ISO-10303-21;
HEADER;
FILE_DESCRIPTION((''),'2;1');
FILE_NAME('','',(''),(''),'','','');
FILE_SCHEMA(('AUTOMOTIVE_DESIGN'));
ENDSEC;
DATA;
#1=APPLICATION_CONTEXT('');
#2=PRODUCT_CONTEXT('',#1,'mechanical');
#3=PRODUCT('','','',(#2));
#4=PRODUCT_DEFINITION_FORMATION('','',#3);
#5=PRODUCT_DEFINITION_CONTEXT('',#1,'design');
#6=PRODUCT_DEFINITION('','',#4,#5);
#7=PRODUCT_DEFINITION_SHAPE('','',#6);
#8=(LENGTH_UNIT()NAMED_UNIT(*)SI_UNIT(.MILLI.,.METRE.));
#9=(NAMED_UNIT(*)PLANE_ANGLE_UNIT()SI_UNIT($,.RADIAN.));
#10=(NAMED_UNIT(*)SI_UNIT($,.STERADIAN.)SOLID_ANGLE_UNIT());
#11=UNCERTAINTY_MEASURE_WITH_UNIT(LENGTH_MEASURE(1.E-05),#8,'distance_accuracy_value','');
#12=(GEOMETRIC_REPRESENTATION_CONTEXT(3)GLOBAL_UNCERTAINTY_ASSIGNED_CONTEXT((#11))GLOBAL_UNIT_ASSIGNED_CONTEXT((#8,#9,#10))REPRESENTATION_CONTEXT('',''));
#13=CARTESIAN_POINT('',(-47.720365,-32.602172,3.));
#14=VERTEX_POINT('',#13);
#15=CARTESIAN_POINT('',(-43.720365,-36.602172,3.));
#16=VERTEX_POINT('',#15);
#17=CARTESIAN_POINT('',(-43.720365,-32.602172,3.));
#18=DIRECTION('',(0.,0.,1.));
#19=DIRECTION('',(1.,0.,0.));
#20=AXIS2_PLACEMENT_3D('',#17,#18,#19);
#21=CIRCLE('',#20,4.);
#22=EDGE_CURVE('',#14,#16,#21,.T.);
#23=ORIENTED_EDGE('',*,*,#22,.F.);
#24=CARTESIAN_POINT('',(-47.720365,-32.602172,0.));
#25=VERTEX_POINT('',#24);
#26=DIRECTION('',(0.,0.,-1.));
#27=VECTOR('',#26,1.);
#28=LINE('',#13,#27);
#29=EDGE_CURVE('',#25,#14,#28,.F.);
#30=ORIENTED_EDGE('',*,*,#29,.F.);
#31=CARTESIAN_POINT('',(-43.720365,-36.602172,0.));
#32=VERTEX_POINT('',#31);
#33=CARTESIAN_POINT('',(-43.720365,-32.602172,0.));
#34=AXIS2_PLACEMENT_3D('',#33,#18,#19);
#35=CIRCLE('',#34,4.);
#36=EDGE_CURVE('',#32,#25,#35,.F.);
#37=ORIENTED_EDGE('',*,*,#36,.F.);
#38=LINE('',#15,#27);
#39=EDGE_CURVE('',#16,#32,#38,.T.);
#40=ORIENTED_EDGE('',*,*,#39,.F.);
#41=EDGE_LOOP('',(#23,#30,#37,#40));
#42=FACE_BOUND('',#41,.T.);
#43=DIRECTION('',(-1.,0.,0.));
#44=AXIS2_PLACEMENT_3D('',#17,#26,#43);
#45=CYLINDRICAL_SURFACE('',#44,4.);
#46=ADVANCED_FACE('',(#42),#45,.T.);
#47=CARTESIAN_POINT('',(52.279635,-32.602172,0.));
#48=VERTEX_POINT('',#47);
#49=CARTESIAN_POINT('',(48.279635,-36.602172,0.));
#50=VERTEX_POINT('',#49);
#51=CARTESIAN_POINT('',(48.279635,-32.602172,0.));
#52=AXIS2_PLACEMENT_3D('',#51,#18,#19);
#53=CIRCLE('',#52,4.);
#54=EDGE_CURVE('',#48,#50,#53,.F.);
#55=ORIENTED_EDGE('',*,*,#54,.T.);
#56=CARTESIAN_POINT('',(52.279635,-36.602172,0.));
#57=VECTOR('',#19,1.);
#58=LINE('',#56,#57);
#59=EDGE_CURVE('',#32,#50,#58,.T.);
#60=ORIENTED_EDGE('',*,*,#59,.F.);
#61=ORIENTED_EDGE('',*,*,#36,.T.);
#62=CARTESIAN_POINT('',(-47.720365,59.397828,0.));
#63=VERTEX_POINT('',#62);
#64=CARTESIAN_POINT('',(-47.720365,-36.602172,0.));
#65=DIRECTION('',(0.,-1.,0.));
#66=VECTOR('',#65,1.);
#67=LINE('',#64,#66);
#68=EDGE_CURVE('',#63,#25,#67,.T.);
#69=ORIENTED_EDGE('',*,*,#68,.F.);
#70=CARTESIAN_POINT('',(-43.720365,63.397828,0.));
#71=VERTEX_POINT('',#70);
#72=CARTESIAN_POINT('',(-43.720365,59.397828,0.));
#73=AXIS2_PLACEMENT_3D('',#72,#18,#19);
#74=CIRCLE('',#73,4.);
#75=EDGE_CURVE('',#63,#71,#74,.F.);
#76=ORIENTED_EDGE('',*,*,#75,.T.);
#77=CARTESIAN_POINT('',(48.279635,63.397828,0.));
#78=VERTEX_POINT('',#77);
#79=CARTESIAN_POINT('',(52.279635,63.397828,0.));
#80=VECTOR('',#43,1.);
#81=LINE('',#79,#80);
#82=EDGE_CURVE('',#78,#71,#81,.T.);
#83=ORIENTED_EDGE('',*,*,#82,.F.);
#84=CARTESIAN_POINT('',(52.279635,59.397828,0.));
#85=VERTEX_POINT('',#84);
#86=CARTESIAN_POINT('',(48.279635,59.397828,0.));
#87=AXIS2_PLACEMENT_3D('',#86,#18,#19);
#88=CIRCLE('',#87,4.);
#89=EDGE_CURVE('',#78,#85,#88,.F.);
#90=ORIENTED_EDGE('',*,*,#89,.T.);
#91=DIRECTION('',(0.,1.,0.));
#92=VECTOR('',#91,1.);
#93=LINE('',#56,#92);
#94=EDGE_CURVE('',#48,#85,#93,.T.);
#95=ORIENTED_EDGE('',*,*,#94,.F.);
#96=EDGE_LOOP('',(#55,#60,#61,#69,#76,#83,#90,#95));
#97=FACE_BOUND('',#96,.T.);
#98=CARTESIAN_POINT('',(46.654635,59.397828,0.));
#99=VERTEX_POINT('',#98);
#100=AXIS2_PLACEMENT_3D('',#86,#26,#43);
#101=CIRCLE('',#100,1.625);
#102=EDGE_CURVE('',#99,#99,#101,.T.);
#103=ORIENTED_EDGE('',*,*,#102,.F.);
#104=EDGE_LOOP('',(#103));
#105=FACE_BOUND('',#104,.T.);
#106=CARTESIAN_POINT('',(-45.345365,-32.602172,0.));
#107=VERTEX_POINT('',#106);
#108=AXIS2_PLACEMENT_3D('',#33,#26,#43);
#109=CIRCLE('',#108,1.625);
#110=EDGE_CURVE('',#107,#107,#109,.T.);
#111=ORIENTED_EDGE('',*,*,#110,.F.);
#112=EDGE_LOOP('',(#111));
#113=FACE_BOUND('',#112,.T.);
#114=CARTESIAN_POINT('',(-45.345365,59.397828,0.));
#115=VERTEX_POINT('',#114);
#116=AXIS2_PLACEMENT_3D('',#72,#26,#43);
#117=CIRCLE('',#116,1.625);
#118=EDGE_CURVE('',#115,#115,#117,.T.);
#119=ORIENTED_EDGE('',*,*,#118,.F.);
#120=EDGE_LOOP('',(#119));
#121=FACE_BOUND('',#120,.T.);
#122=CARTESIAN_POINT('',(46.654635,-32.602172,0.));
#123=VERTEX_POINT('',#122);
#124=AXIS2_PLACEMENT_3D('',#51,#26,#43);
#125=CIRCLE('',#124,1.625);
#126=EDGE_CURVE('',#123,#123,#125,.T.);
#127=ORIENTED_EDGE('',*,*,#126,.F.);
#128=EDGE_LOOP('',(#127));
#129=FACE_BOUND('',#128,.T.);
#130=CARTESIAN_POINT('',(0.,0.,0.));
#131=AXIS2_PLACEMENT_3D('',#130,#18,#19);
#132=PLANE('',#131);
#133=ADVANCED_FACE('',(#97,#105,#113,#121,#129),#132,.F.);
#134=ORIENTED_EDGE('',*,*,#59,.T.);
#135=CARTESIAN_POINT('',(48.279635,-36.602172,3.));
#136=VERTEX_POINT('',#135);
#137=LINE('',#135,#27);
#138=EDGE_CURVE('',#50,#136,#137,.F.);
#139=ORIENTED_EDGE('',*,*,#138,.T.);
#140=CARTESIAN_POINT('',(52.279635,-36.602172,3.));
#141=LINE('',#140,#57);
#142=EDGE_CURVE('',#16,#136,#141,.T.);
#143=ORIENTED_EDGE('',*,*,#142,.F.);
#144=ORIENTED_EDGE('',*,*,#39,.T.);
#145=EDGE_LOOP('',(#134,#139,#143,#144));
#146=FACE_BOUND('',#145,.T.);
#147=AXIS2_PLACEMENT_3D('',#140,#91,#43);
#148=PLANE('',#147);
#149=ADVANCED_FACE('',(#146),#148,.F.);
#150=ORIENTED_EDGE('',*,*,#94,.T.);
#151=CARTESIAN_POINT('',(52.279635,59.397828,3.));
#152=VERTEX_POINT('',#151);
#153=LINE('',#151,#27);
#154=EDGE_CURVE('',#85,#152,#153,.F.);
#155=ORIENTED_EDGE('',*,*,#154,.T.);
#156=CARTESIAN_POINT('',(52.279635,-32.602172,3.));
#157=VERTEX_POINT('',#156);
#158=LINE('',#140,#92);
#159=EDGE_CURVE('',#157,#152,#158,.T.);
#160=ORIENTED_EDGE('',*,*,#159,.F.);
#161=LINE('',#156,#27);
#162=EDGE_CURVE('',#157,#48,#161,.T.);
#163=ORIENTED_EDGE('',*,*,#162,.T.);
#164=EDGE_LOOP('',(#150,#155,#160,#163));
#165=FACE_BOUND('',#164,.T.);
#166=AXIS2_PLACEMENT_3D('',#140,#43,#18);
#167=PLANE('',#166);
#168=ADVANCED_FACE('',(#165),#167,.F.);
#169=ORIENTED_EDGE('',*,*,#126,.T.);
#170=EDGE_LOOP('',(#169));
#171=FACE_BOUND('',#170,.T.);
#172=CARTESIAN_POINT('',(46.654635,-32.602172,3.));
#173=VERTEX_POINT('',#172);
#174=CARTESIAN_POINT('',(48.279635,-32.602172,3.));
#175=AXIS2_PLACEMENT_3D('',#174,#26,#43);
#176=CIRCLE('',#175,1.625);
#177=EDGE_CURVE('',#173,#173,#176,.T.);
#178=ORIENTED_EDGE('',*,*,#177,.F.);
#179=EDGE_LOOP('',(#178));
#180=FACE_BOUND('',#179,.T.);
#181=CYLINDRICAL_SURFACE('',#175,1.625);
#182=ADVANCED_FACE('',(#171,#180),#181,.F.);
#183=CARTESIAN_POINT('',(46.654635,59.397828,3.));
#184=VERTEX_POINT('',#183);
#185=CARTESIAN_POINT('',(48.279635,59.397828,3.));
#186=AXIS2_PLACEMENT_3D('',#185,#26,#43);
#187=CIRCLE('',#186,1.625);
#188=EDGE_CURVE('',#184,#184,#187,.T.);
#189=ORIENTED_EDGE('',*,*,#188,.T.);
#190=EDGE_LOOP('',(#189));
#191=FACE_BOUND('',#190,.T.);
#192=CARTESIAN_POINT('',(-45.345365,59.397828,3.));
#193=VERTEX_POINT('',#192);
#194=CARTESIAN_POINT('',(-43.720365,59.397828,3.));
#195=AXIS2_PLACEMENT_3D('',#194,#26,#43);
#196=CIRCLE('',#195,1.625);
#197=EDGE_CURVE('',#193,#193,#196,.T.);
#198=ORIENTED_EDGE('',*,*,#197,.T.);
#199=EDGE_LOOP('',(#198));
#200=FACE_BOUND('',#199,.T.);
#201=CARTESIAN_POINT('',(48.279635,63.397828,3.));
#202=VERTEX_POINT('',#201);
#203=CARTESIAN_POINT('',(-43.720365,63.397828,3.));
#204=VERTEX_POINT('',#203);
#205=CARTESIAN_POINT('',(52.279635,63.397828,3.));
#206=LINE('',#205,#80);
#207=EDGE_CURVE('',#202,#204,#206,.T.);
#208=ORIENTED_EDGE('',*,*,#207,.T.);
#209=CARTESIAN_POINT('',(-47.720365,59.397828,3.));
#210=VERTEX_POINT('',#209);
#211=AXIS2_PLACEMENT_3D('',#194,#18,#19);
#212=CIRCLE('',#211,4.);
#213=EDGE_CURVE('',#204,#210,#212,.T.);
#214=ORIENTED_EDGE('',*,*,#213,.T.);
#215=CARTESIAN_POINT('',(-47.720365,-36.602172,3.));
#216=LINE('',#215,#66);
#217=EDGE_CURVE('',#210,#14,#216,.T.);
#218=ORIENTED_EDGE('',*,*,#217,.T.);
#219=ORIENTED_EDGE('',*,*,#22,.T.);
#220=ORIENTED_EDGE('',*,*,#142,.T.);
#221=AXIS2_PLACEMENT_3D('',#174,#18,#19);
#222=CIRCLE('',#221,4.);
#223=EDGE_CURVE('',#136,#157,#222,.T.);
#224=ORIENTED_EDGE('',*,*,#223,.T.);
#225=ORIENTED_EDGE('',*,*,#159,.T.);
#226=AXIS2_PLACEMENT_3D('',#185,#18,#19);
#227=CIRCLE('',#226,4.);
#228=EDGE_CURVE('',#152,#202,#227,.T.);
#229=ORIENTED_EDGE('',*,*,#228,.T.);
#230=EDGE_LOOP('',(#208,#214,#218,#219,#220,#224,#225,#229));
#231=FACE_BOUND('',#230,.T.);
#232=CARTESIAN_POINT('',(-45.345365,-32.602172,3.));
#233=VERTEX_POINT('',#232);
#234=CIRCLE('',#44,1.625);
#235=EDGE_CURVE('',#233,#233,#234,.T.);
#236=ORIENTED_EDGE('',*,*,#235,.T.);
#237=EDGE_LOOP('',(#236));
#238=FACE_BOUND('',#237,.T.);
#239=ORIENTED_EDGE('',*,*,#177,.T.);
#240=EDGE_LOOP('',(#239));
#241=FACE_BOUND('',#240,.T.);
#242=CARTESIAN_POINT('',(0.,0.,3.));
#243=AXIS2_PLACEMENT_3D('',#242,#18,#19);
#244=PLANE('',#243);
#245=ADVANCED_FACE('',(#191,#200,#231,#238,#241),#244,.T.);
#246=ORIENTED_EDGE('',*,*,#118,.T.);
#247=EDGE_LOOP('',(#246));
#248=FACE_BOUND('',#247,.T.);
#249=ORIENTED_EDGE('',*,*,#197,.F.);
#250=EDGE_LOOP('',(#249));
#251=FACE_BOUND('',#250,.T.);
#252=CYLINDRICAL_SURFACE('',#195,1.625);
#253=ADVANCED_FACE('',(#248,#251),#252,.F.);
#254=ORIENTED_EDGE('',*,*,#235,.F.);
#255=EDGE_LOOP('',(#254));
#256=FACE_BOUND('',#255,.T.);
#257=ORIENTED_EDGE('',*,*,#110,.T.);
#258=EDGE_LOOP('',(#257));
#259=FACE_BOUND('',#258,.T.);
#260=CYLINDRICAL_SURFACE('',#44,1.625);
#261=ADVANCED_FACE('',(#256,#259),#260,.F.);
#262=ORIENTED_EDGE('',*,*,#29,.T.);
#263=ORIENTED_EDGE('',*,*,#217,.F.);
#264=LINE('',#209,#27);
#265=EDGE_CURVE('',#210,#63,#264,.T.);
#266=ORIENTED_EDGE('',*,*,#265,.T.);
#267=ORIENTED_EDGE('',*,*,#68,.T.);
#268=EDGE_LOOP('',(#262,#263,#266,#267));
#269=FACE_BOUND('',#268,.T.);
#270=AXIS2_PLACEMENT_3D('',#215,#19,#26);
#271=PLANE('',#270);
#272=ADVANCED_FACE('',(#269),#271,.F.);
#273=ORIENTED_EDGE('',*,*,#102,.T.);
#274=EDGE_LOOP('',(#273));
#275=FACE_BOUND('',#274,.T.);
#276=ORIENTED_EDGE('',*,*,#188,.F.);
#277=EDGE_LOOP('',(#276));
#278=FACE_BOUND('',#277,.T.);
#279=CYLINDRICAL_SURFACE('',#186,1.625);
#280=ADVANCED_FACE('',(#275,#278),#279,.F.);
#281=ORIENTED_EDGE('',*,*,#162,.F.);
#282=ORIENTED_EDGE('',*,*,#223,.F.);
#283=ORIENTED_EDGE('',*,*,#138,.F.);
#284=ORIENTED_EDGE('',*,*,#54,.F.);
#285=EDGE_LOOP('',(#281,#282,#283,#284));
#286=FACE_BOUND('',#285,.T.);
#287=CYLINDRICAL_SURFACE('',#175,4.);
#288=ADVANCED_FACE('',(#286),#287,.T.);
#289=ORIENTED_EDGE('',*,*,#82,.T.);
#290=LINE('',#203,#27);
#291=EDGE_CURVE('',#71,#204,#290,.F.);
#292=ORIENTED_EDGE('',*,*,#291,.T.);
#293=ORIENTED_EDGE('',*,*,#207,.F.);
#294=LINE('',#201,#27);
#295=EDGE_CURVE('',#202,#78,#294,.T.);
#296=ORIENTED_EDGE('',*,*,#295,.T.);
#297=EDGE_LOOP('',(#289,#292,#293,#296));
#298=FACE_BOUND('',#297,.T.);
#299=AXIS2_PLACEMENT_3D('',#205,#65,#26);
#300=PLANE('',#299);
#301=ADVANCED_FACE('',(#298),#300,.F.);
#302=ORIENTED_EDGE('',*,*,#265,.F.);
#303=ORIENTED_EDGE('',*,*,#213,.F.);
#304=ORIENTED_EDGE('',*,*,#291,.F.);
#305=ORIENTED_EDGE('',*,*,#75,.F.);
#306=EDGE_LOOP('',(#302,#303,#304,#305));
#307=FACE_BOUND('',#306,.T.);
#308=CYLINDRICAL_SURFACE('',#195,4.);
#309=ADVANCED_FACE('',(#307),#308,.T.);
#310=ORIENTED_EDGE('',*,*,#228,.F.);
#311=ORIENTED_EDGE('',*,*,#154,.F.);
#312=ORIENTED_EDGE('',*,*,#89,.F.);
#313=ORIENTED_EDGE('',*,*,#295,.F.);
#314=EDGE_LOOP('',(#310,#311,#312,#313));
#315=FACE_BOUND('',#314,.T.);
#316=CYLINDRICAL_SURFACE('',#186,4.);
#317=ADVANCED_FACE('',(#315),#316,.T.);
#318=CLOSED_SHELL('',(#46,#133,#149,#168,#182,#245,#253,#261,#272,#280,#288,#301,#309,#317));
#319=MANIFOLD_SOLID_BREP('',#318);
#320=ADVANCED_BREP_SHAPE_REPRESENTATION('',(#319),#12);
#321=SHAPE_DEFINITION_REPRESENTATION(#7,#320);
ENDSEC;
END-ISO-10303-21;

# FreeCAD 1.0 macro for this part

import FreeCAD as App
import Part
import Sketcher
from FreeCAD import Vector
Q = App.Units.Quantity


def edges_at(feature, points):
    """Names of the edges that pass closest to the given points."""
    edges = feature.Shape.Edges
    near = lambda p: min(range(len(edges)), key=lambda i: edges[i].distToShape(Part.Vertex(*p))[0])
    return sorted({f"Edge{near(p) + 1}" for p in points})


def add_polygon(sketch, points):
    """Adds a closed chain of lines whose ends are joined by coincident constraints."""
    first, n = sketch.GeometryCount, len(points)
    for a, b in zip(points, points[1:] + points[:1]):
        sketch.addGeometry(Part.LineSegment(App.Vector(*a, 0), App.Vector(*b, 0)), False)
    for i in range(n):
        sketch.addConstraint(Sketcher.Constraint("Coincident", first + i, 2, first + (i + 1) % n, 1))

doc = App.newDocument("Part")
body = doc.addObject("PartDesign::Body", "Body")

# Sketch on XY plane
sketch1 = body.newObject("Sketcher::SketchObject", "Sketch")
sketch1.AttachmentSupport = (doc.getObject("XY_Plane"), [""])
sketch1.MapMode = "FlatFace"
add_polygon(sketch1, [(-48, 63), (-48, -37), (52, -37), (52, 63)])  # lines 0-3
sketch1.addConstraint(Sketcher.Constraint("Vertical", 0))
sketch1.addConstraint(Sketcher.Constraint("Horizontal", 1))
sketch1.addConstraint(Sketcher.Constraint("Vertical", 2))
sketch1.addConstraint(Sketcher.Constraint("Horizontal", 3))
sketch1.addConstraint(Sketcher.Constraint("Equal", 3, 0))
sketch1.addConstraint(Sketcher.Constraint("DistanceX", 1, 1, 1, 2, Q("100 mm")))
sketch1.addConstraint(Sketcher.Constraint("DistanceY", 0, 2, -1, 1, Q("36.602172 mm")))
sketch1.addConstraint(Sketcher.Constraint("DistanceX", 0, 2, -1, 1, Q("47.720365 mm")))
pad1 = body.newObject("PartDesign::Pad", "Pad")
pad1.Profile = sketch1
pad1.Length = 3
doc.recompute()

fillet = body.newObject("PartDesign::Fillet", "Fillet")
fillet.Base = (pad1, edges_at(pad1, [
    (-47.72, 63.398, 1.5),
    (52.28, 63.398, 1.5),
    (52.28, -36.602, 1.5),
    (-47.72, -36.602, 1.5),
]))
fillet.Radius = 4

# Sketch on XY plane
sketch2 = body.newObject("Sketcher::SketchObject", "Sketch001")
sketch2.AttachmentSupport = (doc.getObject("XY_Plane"), [""])
sketch2.MapMode = "FlatFace"
sketch2.addGeometry(Part.Circle(Vector(48.3, 59.4, 0), Vector(0, 0, 1), 1.6), False)
sketch2.addGeometry(Part.Circle(Vector(-43.7, 59.4, 0), Vector(0, 0, 1), 1.6), False)
sketch2.addGeometry(Part.Circle(Vector(-43.7, -32.6, 0), Vector(0, 0, 1), 1.6), False)
sketch2.addGeometry(Part.Circle(Vector(48.3, -32.6, 0), Vector(0, 0, 1), 1.6), False)
sketch2.addConstraint(Sketcher.Constraint("Equal", 0, 1))
sketch2.addConstraint(Sketcher.Constraint("Equal", 1, 2))
sketch2.addConstraint(Sketcher.Constraint("Equal", 2, 3))
sketch2.addConstraint(Sketcher.Constraint("Horizontal", 0, 3, 1, 3))
sketch2.addConstraint(Sketcher.Constraint("Horizontal", 2, 3, 3, 3))
sketch2.addConstraint(Sketcher.Constraint("Vertical", 1, 3, 2, 3))
sketch2.addConstraint(Sketcher.Constraint("Vertical", 0, 3, 3, 3))
sketch2.addConstraint(Sketcher.Constraint("Diameter", 0, Q("3.25 mm")))
sketch2.addConstraint(Sketcher.Constraint("DistanceX", 1, 3, 0, 3, Q("92 mm")))
sketch2.addConstraint(Sketcher.Constraint("DistanceY", 2, 3, 1, 3, Q("92 mm")))
sketch2.addConstraint(Sketcher.Constraint("DistanceY", -1, 1, 0, 3, Q("59.397828 mm")))
sketch2.addConstraint(Sketcher.Constraint("DistanceX", -1, 1, 0, 3, Q("48.279635 mm")))
pocket1 = body.newObject("PartDesign::Pocket", "Pocket")
pocket1.Profile = sketch2
pocket1.Type = "ThroughAll"
pocket1.Reversed = True

doc.recompute()
